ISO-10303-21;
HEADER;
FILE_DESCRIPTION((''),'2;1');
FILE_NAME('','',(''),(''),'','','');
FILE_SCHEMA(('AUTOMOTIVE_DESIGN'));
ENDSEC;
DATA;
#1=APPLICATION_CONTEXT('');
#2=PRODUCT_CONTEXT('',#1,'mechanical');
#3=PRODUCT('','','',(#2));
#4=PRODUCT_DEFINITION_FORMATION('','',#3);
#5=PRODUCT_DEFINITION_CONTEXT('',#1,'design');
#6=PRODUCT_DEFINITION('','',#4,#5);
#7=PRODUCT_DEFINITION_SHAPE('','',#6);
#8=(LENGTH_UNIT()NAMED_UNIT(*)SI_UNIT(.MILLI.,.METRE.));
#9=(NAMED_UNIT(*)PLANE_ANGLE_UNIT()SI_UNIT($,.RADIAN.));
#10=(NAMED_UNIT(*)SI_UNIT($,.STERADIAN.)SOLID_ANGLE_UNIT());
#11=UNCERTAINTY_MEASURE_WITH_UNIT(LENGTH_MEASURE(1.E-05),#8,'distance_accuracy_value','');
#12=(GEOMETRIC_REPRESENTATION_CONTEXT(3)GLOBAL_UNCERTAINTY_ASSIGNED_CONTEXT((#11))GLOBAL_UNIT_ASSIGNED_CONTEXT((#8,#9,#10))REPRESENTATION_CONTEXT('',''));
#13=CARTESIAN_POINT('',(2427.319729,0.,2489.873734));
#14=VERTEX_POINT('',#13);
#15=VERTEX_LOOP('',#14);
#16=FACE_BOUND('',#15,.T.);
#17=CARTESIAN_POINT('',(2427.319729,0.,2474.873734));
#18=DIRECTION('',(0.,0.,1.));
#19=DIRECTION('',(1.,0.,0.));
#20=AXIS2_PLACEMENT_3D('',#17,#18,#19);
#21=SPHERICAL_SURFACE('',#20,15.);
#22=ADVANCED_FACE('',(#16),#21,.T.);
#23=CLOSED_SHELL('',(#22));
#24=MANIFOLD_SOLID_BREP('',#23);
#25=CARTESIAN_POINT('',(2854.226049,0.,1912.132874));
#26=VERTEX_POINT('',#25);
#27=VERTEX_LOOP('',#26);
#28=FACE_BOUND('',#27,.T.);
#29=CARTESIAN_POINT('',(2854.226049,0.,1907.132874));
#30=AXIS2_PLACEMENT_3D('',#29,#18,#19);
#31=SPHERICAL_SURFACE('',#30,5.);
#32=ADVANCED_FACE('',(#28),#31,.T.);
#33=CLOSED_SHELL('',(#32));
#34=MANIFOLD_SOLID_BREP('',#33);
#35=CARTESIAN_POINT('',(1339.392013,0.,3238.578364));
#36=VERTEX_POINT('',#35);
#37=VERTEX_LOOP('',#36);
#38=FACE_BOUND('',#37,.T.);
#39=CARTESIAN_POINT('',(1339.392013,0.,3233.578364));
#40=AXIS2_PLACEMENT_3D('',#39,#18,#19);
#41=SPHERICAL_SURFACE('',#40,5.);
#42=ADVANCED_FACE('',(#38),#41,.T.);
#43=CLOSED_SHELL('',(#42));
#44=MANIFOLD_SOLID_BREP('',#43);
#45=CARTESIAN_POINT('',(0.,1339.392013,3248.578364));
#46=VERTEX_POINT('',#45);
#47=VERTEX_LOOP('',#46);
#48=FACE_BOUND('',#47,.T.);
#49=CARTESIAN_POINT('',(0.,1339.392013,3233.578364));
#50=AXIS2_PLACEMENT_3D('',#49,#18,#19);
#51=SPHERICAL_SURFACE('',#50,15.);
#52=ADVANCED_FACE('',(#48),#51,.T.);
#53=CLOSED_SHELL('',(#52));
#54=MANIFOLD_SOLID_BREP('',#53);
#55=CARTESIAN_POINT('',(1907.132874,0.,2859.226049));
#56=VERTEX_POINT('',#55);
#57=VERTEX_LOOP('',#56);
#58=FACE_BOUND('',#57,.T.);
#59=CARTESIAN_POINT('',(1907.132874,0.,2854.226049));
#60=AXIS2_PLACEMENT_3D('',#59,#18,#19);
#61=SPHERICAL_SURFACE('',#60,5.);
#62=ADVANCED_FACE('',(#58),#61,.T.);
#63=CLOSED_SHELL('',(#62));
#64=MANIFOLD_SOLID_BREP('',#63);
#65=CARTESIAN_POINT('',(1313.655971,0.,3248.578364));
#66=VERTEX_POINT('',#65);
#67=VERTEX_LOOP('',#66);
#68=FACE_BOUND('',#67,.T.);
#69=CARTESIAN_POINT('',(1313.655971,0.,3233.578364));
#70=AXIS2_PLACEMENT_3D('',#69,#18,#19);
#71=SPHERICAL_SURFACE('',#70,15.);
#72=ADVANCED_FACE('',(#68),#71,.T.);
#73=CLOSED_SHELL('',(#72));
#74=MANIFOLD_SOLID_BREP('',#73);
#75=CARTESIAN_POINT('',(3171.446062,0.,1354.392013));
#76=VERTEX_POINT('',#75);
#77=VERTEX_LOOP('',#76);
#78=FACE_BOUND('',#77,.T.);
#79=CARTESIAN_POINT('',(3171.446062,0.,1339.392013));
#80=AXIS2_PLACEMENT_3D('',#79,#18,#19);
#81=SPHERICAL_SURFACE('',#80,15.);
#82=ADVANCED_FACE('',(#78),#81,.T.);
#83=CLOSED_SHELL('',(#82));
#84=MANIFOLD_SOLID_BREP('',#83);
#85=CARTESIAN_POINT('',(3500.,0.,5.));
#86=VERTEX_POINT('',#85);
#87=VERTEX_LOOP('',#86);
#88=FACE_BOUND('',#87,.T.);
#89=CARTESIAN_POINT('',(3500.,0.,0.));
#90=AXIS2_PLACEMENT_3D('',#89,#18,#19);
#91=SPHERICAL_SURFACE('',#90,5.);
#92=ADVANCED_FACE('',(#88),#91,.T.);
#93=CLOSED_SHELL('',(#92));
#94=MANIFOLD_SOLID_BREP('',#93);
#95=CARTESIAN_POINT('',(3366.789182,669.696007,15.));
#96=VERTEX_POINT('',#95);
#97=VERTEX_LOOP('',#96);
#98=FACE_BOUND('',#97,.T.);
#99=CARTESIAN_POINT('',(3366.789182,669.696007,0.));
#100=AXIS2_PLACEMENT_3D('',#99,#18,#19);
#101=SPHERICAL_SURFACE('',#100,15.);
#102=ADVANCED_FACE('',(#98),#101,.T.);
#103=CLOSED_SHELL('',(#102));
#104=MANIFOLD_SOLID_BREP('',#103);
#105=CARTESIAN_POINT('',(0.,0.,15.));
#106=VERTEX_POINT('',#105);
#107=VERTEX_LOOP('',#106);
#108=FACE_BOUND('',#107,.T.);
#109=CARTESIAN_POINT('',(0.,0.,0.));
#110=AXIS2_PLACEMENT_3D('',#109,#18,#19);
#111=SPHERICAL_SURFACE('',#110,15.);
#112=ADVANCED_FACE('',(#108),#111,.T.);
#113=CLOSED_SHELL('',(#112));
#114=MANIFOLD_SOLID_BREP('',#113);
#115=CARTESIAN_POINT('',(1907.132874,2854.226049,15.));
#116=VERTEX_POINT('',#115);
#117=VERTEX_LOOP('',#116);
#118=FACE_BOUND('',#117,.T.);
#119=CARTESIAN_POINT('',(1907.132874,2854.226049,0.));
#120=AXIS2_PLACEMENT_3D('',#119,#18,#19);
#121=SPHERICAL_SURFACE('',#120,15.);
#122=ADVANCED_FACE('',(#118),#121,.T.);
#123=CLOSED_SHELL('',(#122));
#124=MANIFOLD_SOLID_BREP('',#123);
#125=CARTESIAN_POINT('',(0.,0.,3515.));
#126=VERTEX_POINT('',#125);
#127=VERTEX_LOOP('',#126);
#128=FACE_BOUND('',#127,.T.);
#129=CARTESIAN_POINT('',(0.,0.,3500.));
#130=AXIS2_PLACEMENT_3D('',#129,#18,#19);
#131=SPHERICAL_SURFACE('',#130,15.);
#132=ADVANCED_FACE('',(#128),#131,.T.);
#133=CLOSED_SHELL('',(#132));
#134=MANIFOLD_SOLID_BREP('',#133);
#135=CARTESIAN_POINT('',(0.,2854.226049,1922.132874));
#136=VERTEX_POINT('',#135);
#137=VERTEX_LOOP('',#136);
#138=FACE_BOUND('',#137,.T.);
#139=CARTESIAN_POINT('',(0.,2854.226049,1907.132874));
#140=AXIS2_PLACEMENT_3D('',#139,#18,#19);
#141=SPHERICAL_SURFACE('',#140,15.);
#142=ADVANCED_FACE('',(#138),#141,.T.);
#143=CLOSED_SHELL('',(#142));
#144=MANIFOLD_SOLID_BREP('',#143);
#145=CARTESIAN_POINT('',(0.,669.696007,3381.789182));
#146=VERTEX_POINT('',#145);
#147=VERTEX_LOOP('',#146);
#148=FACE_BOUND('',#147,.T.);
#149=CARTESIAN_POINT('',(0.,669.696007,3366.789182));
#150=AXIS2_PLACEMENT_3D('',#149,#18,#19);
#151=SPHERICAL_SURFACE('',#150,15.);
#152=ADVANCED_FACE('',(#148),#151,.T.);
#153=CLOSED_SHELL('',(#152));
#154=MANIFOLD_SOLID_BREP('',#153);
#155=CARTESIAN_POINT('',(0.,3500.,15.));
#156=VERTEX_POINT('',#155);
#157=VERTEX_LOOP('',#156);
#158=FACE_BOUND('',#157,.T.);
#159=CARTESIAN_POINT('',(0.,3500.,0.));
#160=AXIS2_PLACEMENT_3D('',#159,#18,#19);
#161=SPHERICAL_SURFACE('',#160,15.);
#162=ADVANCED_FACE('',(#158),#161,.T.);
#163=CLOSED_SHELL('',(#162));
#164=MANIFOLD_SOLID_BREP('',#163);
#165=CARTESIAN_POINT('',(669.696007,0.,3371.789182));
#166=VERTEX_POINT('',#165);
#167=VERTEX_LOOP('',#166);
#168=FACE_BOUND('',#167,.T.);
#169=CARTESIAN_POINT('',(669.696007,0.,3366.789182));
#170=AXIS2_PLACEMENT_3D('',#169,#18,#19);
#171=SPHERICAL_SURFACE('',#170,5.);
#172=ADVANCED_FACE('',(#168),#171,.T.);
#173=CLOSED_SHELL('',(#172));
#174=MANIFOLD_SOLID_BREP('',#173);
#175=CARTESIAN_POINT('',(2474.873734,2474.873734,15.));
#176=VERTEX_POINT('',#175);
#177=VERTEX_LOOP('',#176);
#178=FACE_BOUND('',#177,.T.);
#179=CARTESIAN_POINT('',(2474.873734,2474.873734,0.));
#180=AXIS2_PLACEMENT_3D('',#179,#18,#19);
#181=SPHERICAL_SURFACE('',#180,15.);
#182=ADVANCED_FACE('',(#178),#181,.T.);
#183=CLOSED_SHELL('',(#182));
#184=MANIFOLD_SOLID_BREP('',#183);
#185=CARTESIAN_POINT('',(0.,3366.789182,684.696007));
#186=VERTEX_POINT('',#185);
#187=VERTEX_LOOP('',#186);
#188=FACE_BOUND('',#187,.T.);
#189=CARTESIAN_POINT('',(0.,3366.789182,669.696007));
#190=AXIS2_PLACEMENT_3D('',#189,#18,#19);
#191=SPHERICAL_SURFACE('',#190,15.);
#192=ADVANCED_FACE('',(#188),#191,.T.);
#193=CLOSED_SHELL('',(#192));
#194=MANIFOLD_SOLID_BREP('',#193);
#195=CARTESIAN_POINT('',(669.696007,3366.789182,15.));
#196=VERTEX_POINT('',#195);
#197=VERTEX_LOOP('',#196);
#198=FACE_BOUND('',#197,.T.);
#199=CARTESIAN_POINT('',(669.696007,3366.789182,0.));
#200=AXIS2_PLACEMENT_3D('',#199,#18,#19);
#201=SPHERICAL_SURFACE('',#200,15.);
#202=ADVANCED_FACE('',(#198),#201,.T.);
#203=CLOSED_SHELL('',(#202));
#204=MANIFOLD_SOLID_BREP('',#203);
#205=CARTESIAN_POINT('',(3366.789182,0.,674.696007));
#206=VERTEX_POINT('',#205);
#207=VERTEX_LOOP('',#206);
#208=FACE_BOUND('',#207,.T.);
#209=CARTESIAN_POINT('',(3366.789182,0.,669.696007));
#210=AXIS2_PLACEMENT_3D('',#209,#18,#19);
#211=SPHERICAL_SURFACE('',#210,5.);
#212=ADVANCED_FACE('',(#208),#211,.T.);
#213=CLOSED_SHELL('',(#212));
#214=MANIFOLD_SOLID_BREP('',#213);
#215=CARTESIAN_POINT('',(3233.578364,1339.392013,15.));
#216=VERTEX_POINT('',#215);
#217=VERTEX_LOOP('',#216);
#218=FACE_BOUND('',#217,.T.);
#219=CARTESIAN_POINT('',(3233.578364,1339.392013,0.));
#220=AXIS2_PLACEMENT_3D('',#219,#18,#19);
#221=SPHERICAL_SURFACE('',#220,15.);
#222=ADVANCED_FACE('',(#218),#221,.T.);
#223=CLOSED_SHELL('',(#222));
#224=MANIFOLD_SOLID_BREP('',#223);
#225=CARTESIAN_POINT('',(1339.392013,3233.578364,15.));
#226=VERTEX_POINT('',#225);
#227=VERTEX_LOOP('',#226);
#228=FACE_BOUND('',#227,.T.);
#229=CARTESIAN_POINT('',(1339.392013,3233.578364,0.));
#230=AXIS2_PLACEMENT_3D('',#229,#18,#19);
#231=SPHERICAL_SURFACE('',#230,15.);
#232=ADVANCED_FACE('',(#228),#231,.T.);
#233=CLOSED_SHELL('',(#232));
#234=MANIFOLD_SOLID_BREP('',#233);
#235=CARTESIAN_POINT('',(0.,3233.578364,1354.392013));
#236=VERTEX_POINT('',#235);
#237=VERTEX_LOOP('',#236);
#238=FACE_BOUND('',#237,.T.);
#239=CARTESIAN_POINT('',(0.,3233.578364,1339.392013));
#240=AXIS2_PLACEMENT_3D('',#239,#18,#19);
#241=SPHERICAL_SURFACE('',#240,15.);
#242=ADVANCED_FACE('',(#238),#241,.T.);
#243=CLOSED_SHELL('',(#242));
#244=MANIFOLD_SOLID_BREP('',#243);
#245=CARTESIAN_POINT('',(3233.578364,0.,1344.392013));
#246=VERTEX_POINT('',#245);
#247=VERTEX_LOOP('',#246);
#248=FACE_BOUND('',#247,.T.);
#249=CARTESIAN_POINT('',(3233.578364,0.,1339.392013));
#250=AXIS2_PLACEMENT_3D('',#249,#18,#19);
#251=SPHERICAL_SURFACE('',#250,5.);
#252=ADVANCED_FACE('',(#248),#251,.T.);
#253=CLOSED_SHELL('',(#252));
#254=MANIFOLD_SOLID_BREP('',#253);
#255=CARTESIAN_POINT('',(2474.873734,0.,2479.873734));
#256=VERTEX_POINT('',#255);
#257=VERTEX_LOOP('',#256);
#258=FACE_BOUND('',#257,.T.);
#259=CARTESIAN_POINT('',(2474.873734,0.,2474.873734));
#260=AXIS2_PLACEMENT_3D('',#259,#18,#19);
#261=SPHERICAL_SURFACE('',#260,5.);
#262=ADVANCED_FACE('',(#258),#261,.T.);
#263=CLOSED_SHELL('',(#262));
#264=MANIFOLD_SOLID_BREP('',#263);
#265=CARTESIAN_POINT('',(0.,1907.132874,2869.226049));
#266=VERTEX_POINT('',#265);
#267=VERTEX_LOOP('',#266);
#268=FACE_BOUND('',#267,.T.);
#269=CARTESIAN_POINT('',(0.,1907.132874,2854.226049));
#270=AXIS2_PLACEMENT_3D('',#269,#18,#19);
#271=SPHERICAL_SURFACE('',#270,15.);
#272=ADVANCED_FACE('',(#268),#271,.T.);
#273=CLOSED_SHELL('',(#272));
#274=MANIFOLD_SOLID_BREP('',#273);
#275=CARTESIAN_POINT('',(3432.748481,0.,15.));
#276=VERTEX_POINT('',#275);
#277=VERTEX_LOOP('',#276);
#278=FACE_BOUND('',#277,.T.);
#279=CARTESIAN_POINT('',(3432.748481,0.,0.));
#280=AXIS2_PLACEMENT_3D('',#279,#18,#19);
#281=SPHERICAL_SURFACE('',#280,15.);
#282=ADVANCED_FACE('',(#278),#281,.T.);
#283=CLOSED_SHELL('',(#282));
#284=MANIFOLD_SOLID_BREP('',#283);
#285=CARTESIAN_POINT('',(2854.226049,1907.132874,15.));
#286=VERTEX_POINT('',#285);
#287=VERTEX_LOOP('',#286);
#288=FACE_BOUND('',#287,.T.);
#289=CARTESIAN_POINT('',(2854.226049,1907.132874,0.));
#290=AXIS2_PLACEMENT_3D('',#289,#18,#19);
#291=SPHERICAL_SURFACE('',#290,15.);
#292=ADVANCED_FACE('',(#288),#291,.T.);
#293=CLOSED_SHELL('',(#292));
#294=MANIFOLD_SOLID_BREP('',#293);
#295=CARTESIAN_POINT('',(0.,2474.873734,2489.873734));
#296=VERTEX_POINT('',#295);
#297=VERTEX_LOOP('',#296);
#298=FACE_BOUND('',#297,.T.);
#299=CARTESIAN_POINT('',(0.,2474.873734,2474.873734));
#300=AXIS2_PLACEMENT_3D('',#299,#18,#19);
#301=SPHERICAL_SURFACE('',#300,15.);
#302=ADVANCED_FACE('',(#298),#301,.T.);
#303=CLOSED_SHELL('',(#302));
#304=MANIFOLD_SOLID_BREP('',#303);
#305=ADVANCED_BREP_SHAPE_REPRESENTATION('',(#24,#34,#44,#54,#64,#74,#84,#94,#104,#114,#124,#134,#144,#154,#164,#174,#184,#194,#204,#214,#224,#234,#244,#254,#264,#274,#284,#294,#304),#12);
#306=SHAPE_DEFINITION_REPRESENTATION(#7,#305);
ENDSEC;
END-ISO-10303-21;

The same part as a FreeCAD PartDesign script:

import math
import FreeCAD as App
import Part
import Sketcher

V = App.Vector

doc = App.newDocument("Part")
body = doc.addObject("PartDesign::Body", "Body")

sketch1 = body.newObject("Sketcher::SketchObject", "Sketch")
sketch1.AttachmentSupport = (doc.getObject("XZ_Plane"), [""])
sketch1.MapMode = "FlatFace"
sketch1.addGeometry(Part.ArcOfCircle(Part.Circle(V(3500, 0, 0), V(0, 0, 1), 5), math.radians(-90), math.radians(90)), False)
sketch1.addGeometry(Part.LineSegment(V(3500, 5, 0), V(3500, -5, 0)), False)
sketch1.addGeometry(Part.LineSegment(V(3500, -5, 0), V(3500, 5, 0)), True)
sketch1.addConstraint(Sketcher.Constraint("Coincident", 0, 1, 1, 2))
sketch1.addConstraint(Sketcher.Constraint("Coincident", 1, 1, 0, 2))
sketch1.addConstraint(Sketcher.Constraint("Vertical", 1))
sketch1.addConstraint(Sketcher.Constraint("Vertical", 2))
sketch1.addConstraint(Sketcher.Constraint("Coincident", 2, 1, 0, 1))
sketch1.addConstraint(Sketcher.Constraint("PointOnObject", 0, 3, -1))
sketch1.addConstraint(Sketcher.Constraint("Equal", 1, 2))
sketch1.addConstraint(Sketcher.Constraint("Radius", 0, 5.0))
sketch1.addConstraint(Sketcher.Constraint("DistanceX", -1, 1, 0, 3, 3500.0))
sketch1.addConstraint(Sketcher.Constraint("DistanceX", -1, 1, 0, 1, 3500.0))
revolution = body.newObject("PartDesign::Revolution", "Revolution")
revolution.Profile = sketch1
revolution.ReferenceAxis = (sketch1, ["Axis0"])
revolution.Angle = 360
body2 = doc.addObject("PartDesign::Body", "Body001")

sketch2 = body2.newObject("Sketcher::SketchObject", "Sketch001")
sketch2.AttachmentSupport = (doc.getObject("XZ_Plane001"), [""])
sketch2.MapMode = "FlatFace"
sketch2.addGeometry(Part.ArcOfCircle(Part.Circle(V(0, 0, 0), V(0, 0, 1), 15), math.radians(-90), math.radians(90)), False)
sketch2.addGeometry(Part.LineSegment(V(0, 15, 0), V(0, -15, 0)), False)
sketch2.addConstraint(Sketcher.Constraint("Coincident", 0, 1, 1, 2))
sketch2.addConstraint(Sketcher.Constraint("Coincident", 1, 1, 0, 2))
sketch2.addConstraint(Sketcher.Constraint("Vertical", 1))
sketch2.addConstraint(Sketcher.Constraint("Coincident", 0, 3, -1, 1))
sketch2.addConstraint(Sketcher.Constraint("PointOnObject", 0, 1, -2))
sketch2.addConstraint(Sketcher.Constraint("Radius", 0, 15.0))
revolution2 = body2.newObject("PartDesign::Revolution", "Revolution001")
revolution2.Profile = sketch2
revolution2.ReferenceAxis = (sketch2, ["V_Axis"])
revolution2.Angle = 360
body3 = doc.addObject("PartDesign::Body", "Body002")

sketch3 = body3.newObject("Sketcher::SketchObject", "Sketch002")
sketch3.AttachmentSupport = (doc.getObject("XZ_Plane002"), [""])
sketch3.MapMode = "FlatFace"
sketch3.addGeometry(Part.ArcOfCircle(Part.Circle(V(0, 3500, 0), V(0, 0, 1), 15), math.radians(-90), math.radians(90)), False)
sketch3.addGeometry(Part.LineSegment(V(0, 3515, 0), V(0, 3485, 0)), False)
sketch3.addConstraint(Sketcher.Constraint("Coincident", 0, 1, 1, 2))
sketch3.addConstraint(Sketcher.Constraint("Coincident", 1, 1, 0, 2))
sketch3.addConstraint(Sketcher.Constraint("Vertical", 1))
sketch3.addConstraint(Sketcher.Constraint("PointOnObject", 0, 3, -2))
sketch3.addConstraint(Sketcher.Constraint("PointOnObject", 0, 1, -2))
sketch3.addConstraint(Sketcher.Constraint("Radius", 0, 15.0))
sketch3.addConstraint(Sketcher.Constraint("DistanceY", -1, 1, 0, 3, 3500.0))
revolution3 = body3.newObject("PartDesign::Revolution", "Revolution002")
revolution3.Profile = sketch3
revolution3.ReferenceAxis = (sketch3, ["V_Axis"])
revolution3.Angle = 360
body4 = doc.addObject("PartDesign::Body", "Body003")

sketch4 = body4.newObject("Sketcher::SketchObject", "Sketch003")
sketch4.AttachmentSupport = (doc.getObject("XZ_Plane003"), [""])
sketch4.MapMode = "FlatFace"
sketch4.addGeometry(Part.ArcOfCircle(Part.Circle(V(1339.392013, 3233.578364, 0), V(0, 0, 1), 5), math.radians(-90), math.radians(90)), False)
sketch4.addGeometry(Part.LineSegment(V(1339.392013, 3238.578364, 0), V(1339.392013, 3228.578364, 0)), False)
sketch4.addGeometry(Part.LineSegment(V(1339.392013, 3228.578364, 0), V(1339.392013, 3238.578364, 0)), True)
sketch4.addConstraint(Sketcher.Constraint("Coincident", 0, 1, 1, 2))
sketch4.addConstraint(Sketcher.Constraint("Coincident", 1, 1, 0, 2))
sketch4.addConstraint(Sketcher.Constraint("Vertical", 1))
sketch4.addConstraint(Sketcher.Constraint("Vertical", 2))
sketch4.addConstraint(Sketcher.Constraint("Coincident", 2, 1, 0, 1))
sketch4.addConstraint(Sketcher.Constraint("Equal", 1, 2))
sketch4.addConstraint(Sketcher.Constraint("Radius", 0, 5.0))
sketch4.addConstraint(Sketcher.Constraint("DistanceX", -1, 1, 0, 3, 1339.392013))
sketch4.addConstraint(Sketcher.Constraint("DistanceY", -1, 1, 0, 3, 3233.578364))
sketch4.addConstraint(Sketcher.Constraint("DistanceX", -1, 1, 0, 1, 1339.392013))
revolution4 = body4.newObject("PartDesign::Revolution", "Revolution003")
revolution4.Profile = sketch4
revolution4.ReferenceAxis = (sketch4, ["Axis0"])
revolution4.Angle = 360
body5 = doc.addObject("PartDesign::Body", "Body004")

sketch5 = body5.newObject("Sketcher::SketchObject", "Sketch004")
sketch5.AttachmentSupport = (doc.getObject("XZ_Plane004"), [""])
sketch5.MapMode = "FlatFace"
sketch5.addGeometry(Part.ArcOfCircle(Part.Circle(V(2474.873734, 2474.873734, 0), V(0, 0, 1), 5), math.radians(-90), math.radians(90)), False)
sketch5.addGeometry(Part.LineSegment(V(2474.873734, 2479.873734, 0), V(2474.873734, 2469.873734, 0)), False)
sketch5.addGeometry(Part.LineSegment(V(2474.873734, 2469.873734, 0), V(2474.873734, 2479.873734, 0)), True)
sketch5.addConstraint(Sketcher.Constraint("Coincident", 0, 1, 1, 2))
sketch5.addConstraint(Sketcher.Constraint("Coincident", 1, 1, 0, 2))
sketch5.addConstraint(Sketcher.Constraint("Vertical", 1))
sketch5.addConstraint(Sketcher.Constraint("Vertical", 2))
sketch5.addConstraint(Sketcher.Constraint("Coincident", 2, 1, 0, 1))
sketch5.addConstraint(Sketcher.Constraint("Equal", 1, 2))
sketch5.addConstraint(Sketcher.Constraint("Radius", 0, 5.0))
sketch5.addConstraint(Sketcher.Constraint("DistanceX", -1, 1, 0, 3, 2474.873734))
sketch5.addConstraint(Sketcher.Constraint("DistanceY", -1, 1, 0, 3, 2474.873734))
sketch5.addConstraint(Sketcher.Constraint("DistanceX", -1, 1, 0, 1, 2474.873734))
revolution5 = body5.newObject("PartDesign::Revolution", "Revolution004")
revolution5.Profile = sketch5
revolution5.ReferenceAxis = (sketch5, ["Axis0"])
revolution5.Angle = 360
body6 = doc.addObject("PartDesign::Body", "Body005")

sketch6 = body6.newObject("Sketcher::SketchObject", "Sketch005")
sketch6.AttachmentSupport = (doc.getObject("XZ_Plane005"), [""])
sketch6.MapMode = "FlatFace"
sketch6.addGeometry(Part.ArcOfCircle(Part.Circle(V(3233.578364, 1339.392013, 0), V(0, 0, 1), 5), math.radians(-90), math.radians(90)), False)
sketch6.addGeometry(Part.LineSegment(V(3233.578364, 1344.392013, 0), V(3233.578364, 1334.392013, 0)), False)
sketch6.addGeometry(Part.LineSegment(V(3233.578364, 1334.392013, 0), V(3233.578364, 1344.392013, 0)), True)
sketch6.addConstraint(Sketcher.Constraint("Coincident", 0, 1, 1, 2))
sketch6.addConstraint(Sketcher.Constraint("Coincident", 1, 1, 0, 2))
sketch6.addConstraint(Sketcher.Constraint("Vertical", 1))
sketch6.addConstraint(Sketcher.Constraint("Vertical", 2))
sketch6.addConstraint(Sketcher.Constraint("Coincident", 2, 1, 0, 1))
sketch6.addConstraint(Sketcher.Constraint("Equal", 1, 2))
sketch6.addConstraint(Sketcher.Constraint("Radius", 0, 5.0))
sketch6.addConstraint(Sketcher.Constraint("DistanceX", -1, 1, 0, 3, 3233.578364))
sketch6.addConstraint(Sketcher.Constraint("DistanceY", -1, 1, 0, 3, 1339.392013))
sketch6.addConstraint(Sketcher.Constraint("DistanceX", -1, 1, 0, 1, 3233.578364))
revolution6 = body6.newObject("PartDesign::Revolution", "Revolution005")
revolution6.Profile = sketch6
revolution6.ReferenceAxis = (sketch6, ["Axis0"])
revolution6.Angle = 360
body7 = doc.addObject("PartDesign::Body", "Body006")

sketch7 = body7.newObject("Sketcher::SketchObject", "Sketch006")
sketch7.AttachmentSupport = (doc.getObject("XZ_Plane006"), [""])
sketch7.MapMode = "FlatFace"
sketch7.AttachmentOffset = App.Placement(V(0, 0, -3500), App.Rotation())
sketch7.addGeometry(Part.ArcOfCircle(Part.Circle(V(0, 0, 0), V(0, 0, 1), 15), math.radians(-90), math.radians(90)), False)
sketch7.addGeometry(Part.LineSegment(V(0, 15, 0), V(0, -15, 0)), False)
sketch7.addConstraint(Sketcher.Constraint("Coincident", 0, 1, 1, 2))
sketch7.addConstraint(Sketcher.Constraint("Coincident", 1, 1, 0, 2))
sketch7.addConstraint(Sketcher.Constraint("Vertical", 1))
sketch7.addConstraint(Sketcher.Constraint("Coincident", 0, 3, -1, 1))
sketch7.addConstraint(Sketcher.Constraint("PointOnObject", 0, 1, -2))
sketch7.addConstraint(Sketcher.Constraint("Radius", 0, 15.0))
revolution7 = body7.newObject("PartDesign::Revolution", "Revolution006")
revolution7.Profile = sketch7
revolution7.ReferenceAxis = (sketch7, ["V_Axis"])
revolution7.Angle = 360
body8 = doc.addObject("PartDesign::Body", "Body007")

sketch8 = body8.newObject("Sketcher::SketchObject", "Sketch007")
sketch8.AttachmentSupport = (doc.getObject("XZ_Plane007"), [""])
sketch8.MapMode = "FlatFace"
sketch8.AttachmentOffset = App.Placement(V(0, 0, -3233.578364), App.Rotation())
sketch8.addGeometry(Part.ArcOfCircle(Part.Circle(V(0, 1339.392013, 0), V(0, 0, 1), 15), math.radians(-90), math.radians(90)), False)
sketch8.addGeometry(Part.LineSegment(V(0, 1354.392013, 0), V(0, 1324.392013, 0)), False)
sketch8.addConstraint(Sketcher.Constraint("Coincident", 0, 1, 1, 2))
sketch8.addConstraint(Sketcher.Constraint("Coincident", 1, 1, 0, 2))
sketch8.addConstraint(Sketcher.Constraint("Vertical", 1))
sketch8.addConstraint(Sketcher.Constraint("PointOnObject", 0, 3, -2))
sketch8.addConstraint(Sketcher.Constraint("PointOnObject", 0, 1, -2))
sketch8.addConstraint(Sketcher.Constraint("Radius", 0, 15.0))
sketch8.addConstraint(Sketcher.Constraint("DistanceY", -1, 1, 0, 3, 1339.392013))
revolution8 = body8.newObject("PartDesign::Revolution", "Revolution007")
revolution8.Profile = sketch8
revolution8.ReferenceAxis = (sketch8, ["V_Axis"])
revolution8.Angle = 360
body9 = doc.addObject("PartDesign::Body", "Body008")

sketch9 = body9.newObject("Sketcher::SketchObject", "Sketch008")
sketch9.AttachmentSupport = (doc.getObject("XZ_Plane008"), [""])
sketch9.MapMode = "FlatFace"
sketch9.AttachmentOffset = App.Placement(V(0, 0, -2474.873734), App.Rotation())
sketch9.addGeometry(Part.ArcOfCircle(Part.Circle(V(0, 2474.873734, 0), V(0, 0, 1), 15), math.radians(-90), math.radians(90)), False)
sketch9.addGeometry(Part.LineSegment(V(0, 2489.873734, 0), V(0, 2459.873734, 0)), False)
sketch9.addConstraint(Sketcher.Constraint("Coincident", 0, 1, 1, 2))
sketch9.addConstraint(Sketcher.Constraint("Coincident", 1, 1, 0, 2))
sketch9.addConstraint(Sketcher.Constraint("Vertical", 1))
sketch9.addConstraint(Sketcher.Constraint("PointOnObject", 0, 3, -2))
sketch9.addConstraint(Sketcher.Constraint("PointOnObject", 0, 1, -2))
sketch9.addConstraint(Sketcher.Constraint("Radius", 0, 15.0))
sketch9.addConstraint(Sketcher.Constraint("DistanceY", -1, 1, 0, 3, 2474.873734))
revolution9 = body9.newObject("PartDesign::Revolution", "Revolution008")
revolution9.Profile = sketch9
revolution9.ReferenceAxis = (sketch9, ["V_Axis"])
revolution9.Angle = 360
body10 = doc.addObject("PartDesign::Body", "Body009")

sketch10 = body10.newObject("Sketcher::SketchObject", "Sketch009")
sketch10.AttachmentSupport = (doc.getObject("XZ_Plane009"), [""])
sketch10.MapMode = "FlatFace"
sketch10.AttachmentOffset = App.Placement(V(0, 0, -1339.392013), App.Rotation())
sketch10.addGeometry(Part.ArcOfCircle(Part.Circle(V(0, 3233.578364, 0), V(0, 0, 1), 15), math.radians(-90), math.radians(90)), False)
sketch10.addGeometry(Part.LineSegment(V(0, 3248.578364, 0), V(0, 3218.578364, 0)), False)
sketch10.addConstraint(Sketcher.Constraint("Coincident", 0, 1, 1, 2))
sketch10.addConstraint(Sketcher.Constraint("Coincident", 1, 1, 0, 2))
sketch10.addConstraint(Sketcher.Constraint("Vertical", 1))
sketch10.addConstraint(Sketcher.Constraint("PointOnObject", 0, 3, -2))
sketch10.addConstraint(Sketcher.Constraint("PointOnObject", 0, 1, -2))
sketch10.addConstraint(Sketcher.Constraint("Radius", 0, 15.0))
sketch10.addConstraint(Sketcher.Constraint("DistanceY", -1, 1, 0, 3, 3233.578364))
revolution10 = body10.newObject("PartDesign::Revolution", "Revolution009")
revolution10.Profile = sketch10
revolution10.ReferenceAxis = (sketch10, ["V_Axis"])
revolution10.Angle = 360
body11 = doc.addObject("PartDesign::Body", "Body010")

sketch11 = body11.newObject("Sketcher::SketchObject", "Sketch010")
sketch11.AttachmentSupport = (doc.getObject("XZ_Plane010"), [""])
sketch11.MapMode = "FlatFace"
sketch11.AttachmentOffset = App.Placement(V(0, 0, -3233.578364), App.Rotation())
sketch11.addGeometry(Part.ArcOfCircle(Part.Circle(V(1339.392013, 0, 0), V(0, 0, 1), 15), math.radians(-90), math.radians(90)), False)
sketch11.addGeometry(Part.LineSegment(V(1339.392013, 15, 0), V(1339.392013, -15, 0)), False)
sketch11.addGeometry(Part.LineSegment(V(1339.392013, -15, 0), V(1339.392013, 15, 0)), True)
sketch11.addConstraint(Sketcher.Constraint("Coincident", 0, 1, 1, 2))
sketch11.addConstraint(Sketcher.Constraint("Coincident", 1, 1, 0, 2))
sketch11.addConstraint(Sketcher.Constraint("Vertical", 1))
sketch11.addConstraint(Sketcher.Constraint("Vertical", 2))
sketch11.addConstraint(Sketcher.Constraint("Coincident", 2, 1, 0, 1))
sketch11.addConstraint(Sketcher.Constraint("PointOnObject", 0, 3, -1))
sketch11.addConstraint(Sketcher.Constraint("Equal", 1, 2))
sketch11.addConstraint(Sketcher.Constraint("Radius", 0, 15.0))
sketch11.addConstraint(Sketcher.Constraint("DistanceX", -1, 1, 0, 3, 1339.392013))
sketch11.addConstraint(Sketcher.Constraint("DistanceX", -1, 1, 0, 1, 1339.392013))
revolution11 = body11.newObject("PartDesign::Revolution", "Revolution010")
revolution11.Profile = sketch11
revolution11.ReferenceAxis = (sketch11, ["Axis0"])
revolution11.Angle = 360
body12 = doc.addObject("PartDesign::Body", "Body011")

sketch12 = body12.newObject("Sketcher::SketchObject", "Sketch011")
sketch12.AttachmentSupport = (doc.getObject("XZ_Plane011"), [""])
sketch12.MapMode = "FlatFace"
sketch12.AttachmentOffset = App.Placement(V(0, 0, -2474.873734), App.Rotation())
sketch12.addGeometry(Part.ArcOfCircle(Part.Circle(V(2474.873734, 0, 0), V(0, 0, 1), 15), math.radians(-90), math.radians(90)), False)
sketch12.addGeometry(Part.LineSegment(V(2474.873734, 15, 0), V(2474.873734, -15, 0)), False)
sketch12.addGeometry(Part.LineSegment(V(2474.873734, -15, 0), V(2474.873734, 15, 0)), True)
sketch12.addConstraint(Sketcher.Constraint("Coincident", 0, 1, 1, 2))
sketch12.addConstraint(Sketcher.Constraint("Coincident", 1, 1, 0, 2))
sketch12.addConstraint(Sketcher.Constraint("Vertical", 1))
sketch12.addConstraint(Sketcher.Constraint("Vertical", 2))
sketch12.addConstraint(Sketcher.Constraint("Coincident", 2, 1, 0, 1))
sketch12.addConstraint(Sketcher.Constraint("PointOnObject", 0, 3, -1))
sketch12.addConstraint(Sketcher.Constraint("Equal", 1, 2))
sketch12.addConstraint(Sketcher.Constraint("Radius", 0, 15.0))
sketch12.addConstraint(Sketcher.Constraint("DistanceX", -1, 1, 0, 3, 2474.873734))
sketch12.addConstraint(Sketcher.Constraint("DistanceX", -1, 1, 0, 1, 2474.873734))
revolution12 = body12.newObject("PartDesign::Revolution", "Revolution011")
revolution12.Profile = sketch12
revolution12.ReferenceAxis = (sketch12, ["Axis0"])
revolution12.Angle = 360
body13 = doc.addObject("PartDesign::Body", "Body012")

sketch13 = body13.newObject("Sketcher::SketchObject", "Sketch012")
sketch13.AttachmentSupport = (doc.getObject("XZ_Plane012"), [""])
sketch13.MapMode = "FlatFace"
sketch13.AttachmentOffset = App.Placement(V(0, 0, -1339.392013), App.Rotation())
sketch13.addGeometry(Part.ArcOfCircle(Part.Circle(V(3233.578364, 0, 0), V(0, 0, 1), 15), math.radians(-90), math.radians(90)), False)
sketch13.addGeometry(Part.LineSegment(V(3233.578364, 15, 0), V(3233.578364, -15, 0)), False)
sketch13.addGeometry(Part.LineSegment(V(3233.578364, -15, 0), V(3233.578364, 15, 0)), True)
sketch13.addConstraint(Sketcher.Constraint("Coincident", 0, 1, 1, 2))
sketch13.addConstraint(Sketcher.Constraint("Coincident", 1, 1, 0, 2))
sketch13.addConstraint(Sketcher.Constraint("Vertical", 1))
sketch13.addConstraint(Sketcher.Constraint("Vertical", 2))
sketch13.addConstraint(Sketcher.Constraint("Coincident", 2, 1, 0, 1))
sketch13.addConstraint(Sketcher.Constraint("PointOnObject", 0, 3, -1))
sketch13.addConstraint(Sketcher.Constraint("Equal", 1, 2))
sketch13.addConstraint(Sketcher.Constraint("Radius", 0, 15.0))
sketch13.addConstraint(Sketcher.Constraint("DistanceX", -1, 1, 0, 3, 3233.578364))
sketch13.addConstraint(Sketcher.Constraint("DistanceX", -1, 1, 0, 1, 3233.578364))
revolution13 = body13.newObject("PartDesign::Revolution", "Revolution012")
revolution13.Profile = sketch13
revolution13.ReferenceAxis = (sketch13, ["Axis0"])
revolution13.Angle = 360
body14 = doc.addObject("PartDesign::Body", "Body013")

sketch14 = body14.newObject("Sketcher::SketchObject", "Sketch013")
sketch14.AttachmentSupport = (doc.getObject("XZ_Plane013"), [""])
sketch14.MapMode = "FlatFace"
sketch14.AttachmentOffset = App.Placement(V(0, 0, -669.696007), App.Rotation())
sketch14.addGeometry(Part.ArcOfCircle(Part.Circle(V(3366.789182, 0, 0), V(0, 0, 1), 15), math.radians(-90), math.radians(90)), False)
sketch14.addGeometry(Part.LineSegment(V(3366.789182, 15, 0), V(3366.789182, -15, 0)), False)
sketch14.addGeometry(Part.LineSegment(V(3366.789182, -15, 0), V(3366.789182, 15, 0)), True)
sketch14.addConstraint(Sketcher.Constraint("Coincident", 0, 1, 1, 2))
sketch14.addConstraint(Sketcher.Constraint("Coincident", 1, 1, 0, 2))
sketch14.addConstraint(Sketcher.Constraint("Vertical", 1))
sketch14.addConstraint(Sketcher.Constraint("Vertical", 2))
sketch14.addConstraint(Sketcher.Constraint("Coincident", 2, 1, 0, 1))
sketch14.addConstraint(Sketcher.Constraint("PointOnObject", 0, 3, -1))
sketch14.addConstraint(Sketcher.Constraint("Equal", 1, 2))
sketch14.addConstraint(Sketcher.Constraint("Radius", 0, 15.0))
sketch14.addConstraint(Sketcher.Constraint("DistanceX", -1, 1, 0, 3, 3366.789182))
sketch14.addConstraint(Sketcher.Constraint("DistanceX", -1, 1, 0, 1, 3366.789182))
revolution14 = body14.newObject("PartDesign::Revolution", "Revolution013")
revolution14.Profile = sketch14
revolution14.ReferenceAxis = (sketch14, ["Axis0"])
revolution14.Angle = 360
body15 = doc.addObject("PartDesign::Body", "Body014")

sketch15 = body15.newObject("Sketcher::SketchObject", "Sketch014")
sketch15.AttachmentSupport = (doc.getObject("XZ_Plane014"), [""])
sketch15.MapMode = "FlatFace"
sketch15.AttachmentOffset = App.Placement(V(0, 0, -1907.132874), App.Rotation())
sketch15.addGeometry(Part.ArcOfCircle(Part.Circle(V(2854.226049, 0, 0), V(0, 0, 1), 15), math.radians(-90), math.radians(90)), False)
sketch15.addGeometry(Part.LineSegment(V(2854.226049, 15, 0), V(2854.226049, -15, 0)), False)
sketch15.addGeometry(Part.LineSegment(V(2854.226049, -15, 0), V(2854.226049, 15, 0)), True)
sketch15.addConstraint(Sketcher.Constraint("Coincident", 0, 1, 1, 2))
sketch15.addConstraint(Sketcher.Constraint("Coincident", 1, 1, 0, 2))
sketch15.addConstraint(Sketcher.Constraint("Vertical", 1))
sketch15.addConstraint(Sketcher.Constraint("Vertical", 2))
sketch15.addConstraint(Sketcher.Constraint("Coincident", 2, 1, 0, 1))
sketch15.addConstraint(Sketcher.Constraint("PointOnObject", 0, 3, -1))
sketch15.addConstraint(Sketcher.Constraint("Equal", 1, 2))
sketch15.addConstraint(Sketcher.Constraint("Radius", 0, 15.0))
sketch15.addConstraint(Sketcher.Constraint("DistanceX", -1, 1, 0, 3, 2854.226049))
sketch15.addConstraint(Sketcher.Constraint("DistanceX", -1, 1, 0, 1, 2854.226049))
revolution15 = body15.newObject("PartDesign::Revolution", "Revolution014")
revolution15.Profile = sketch15
revolution15.ReferenceAxis = (sketch15, ["Axis0"])
revolution15.Angle = 360
body16 = doc.addObject("PartDesign::Body", "Body015")

sketch16 = body16.newObject("Sketcher::SketchObject", "Sketch015")
sketch16.AttachmentSupport = (doc.getObject("XZ_Plane015"), [""])
sketch16.MapMode = "FlatFace"
sketch16.AttachmentOffset = App.Placement(V(0, 0, -2854.226049), App.Rotation())
sketch16.addGeometry(Part.ArcOfCircle(Part.Circle(V(1907.132874, 0, 0), V(0, 0, 1), 15), math.radians(-90), math.radians(90)), False)
sketch16.addGeometry(Part.LineSegment(V(1907.132874, 15, 0), V(1907.132874, -15, 0)), False)
sketch16.addGeometry(Part.LineSegment(V(1907.132874, -15, 0), V(1907.132874, 15, 0)), True)
sketch16.addConstraint(Sketcher.Constraint("Coincident", 0, 1, 1, 2))
sketch16.addConstraint(Sketcher.Constraint("Coincident", 1, 1, 0, 2))
sketch16.addConstraint(Sketcher.Constraint("Vertical", 1))
sketch16.addConstraint(Sketcher.Constraint("Vertical", 2))
sketch16.addConstraint(Sketcher.Constraint("Coincident", 2, 1, 0, 1))
sketch16.addConstraint(Sketcher.Constraint("PointOnObject", 0, 3, -1))
sketch16.addConstraint(Sketcher.Constraint("Equal", 1, 2))
sketch16.addConstraint(Sketcher.Constraint("Radius", 0, 15.0))
sketch16.addConstraint(Sketcher.Constraint("DistanceX", -1, 1, 0, 3, 1907.132874))
sketch16.addConstraint(Sketcher.Constraint("DistanceX", -1, 1, 0, 1, 1907.132874))
revolution16 = body16.newObject("PartDesign::Revolution", "Revolution015")
revolution16.Profile = sketch16
revolution16.ReferenceAxis = (sketch16, ["Axis0"])
revolution16.Angle = 360
body17 = doc.addObject("PartDesign::Body", "Body016")

sketch17 = body17.newObject("Sketcher::SketchObject", "Sketch016")
sketch17.AttachmentSupport = (doc.getObject("XZ_Plane016"), [""])
sketch17.MapMode = "FlatFace"
sketch17.AttachmentOffset = App.Placement(V(0, 0, -3366.789182), App.Rotation())
sketch17.addGeometry(Part.ArcOfCircle(Part.Circle(V(669.696007, 0, 0), V(0, 0, 1), 15), math.radians(-90), math.radians(90)), False)
sketch17.addGeometry(Part.LineSegment(V(669.696007, 15, 0), V(669.696007, -15, 0)), False)
sketch17.addGeometry(Part.LineSegment(V(669.696007, -15, 0), V(669.696007, 15, 0)), True)
sketch17.addConstraint(Sketcher.Constraint("Coincident", 0, 1, 1, 2))
sketch17.addConstraint(Sketcher.Constraint("Coincident", 1, 1, 0, 2))
sketch17.addConstraint(Sketcher.Constraint("Vertical", 1))
sketch17.addConstraint(Sketcher.Constraint("Vertical", 2))
sketch17.addConstraint(Sketcher.Constraint("Coincident", 2, 1, 0, 1))
sketch17.addConstraint(Sketcher.Constraint("PointOnObject", 0, 3, -1))
sketch17.addConstraint(Sketcher.Constraint("Equal", 1, 2))
sketch17.addConstraint(Sketcher.Constraint("Radius", 0, 15.0))
sketch17.addConstraint(Sketcher.Constraint("DistanceX", -1, 1, 0, 3, 669.696007))
sketch17.addConstraint(Sketcher.Constraint("DistanceX", -1, 1, 0, 1, 669.696007))
revolution17 = body17.newObject("PartDesign::Revolution", "Revolution016")
revolution17.Profile = sketch17
revolution17.ReferenceAxis = (sketch17, ["Axis0"])
revolution17.Angle = 360
body18 = doc.addObject("PartDesign::Body", "Body017")

sketch18 = body18.newObject("Sketcher::SketchObject", "Sketch017")
sketch18.AttachmentSupport = (doc.getObject("XZ_Plane017"), [""])
sketch18.MapMode = "FlatFace"
sketch18.AttachmentOffset = App.Placement(V(0, 0, -3366.789182), App.Rotation())
sketch18.addGeometry(Part.ArcOfCircle(Part.Circle(V(0, 669.696007, 0), V(0, 0, 1), 15), math.radians(-90), math.radians(90)), False)
sketch18.addGeometry(Part.LineSegment(V(0, 684.696007, 0), V(0, 654.696007, 0)), False)
sketch18.addConstraint(Sketcher.Constraint("Coincident", 0, 1, 1, 2))
sketch18.addConstraint(Sketcher.Constraint("Coincident", 1, 1, 0, 2))
sketch18.addConstraint(Sketcher.Constraint("Vertical", 1))
sketch18.addConstraint(Sketcher.Constraint("PointOnObject", 0, 3, -2))
sketch18.addConstraint(Sketcher.Constraint("PointOnObject", 0, 1, -2))
sketch18.addConstraint(Sketcher.Constraint("Radius", 0, 15.0))
sketch18.addConstraint(Sketcher.Constraint("DistanceY", -1, 1, 0, 3, 669.696007))
revolution18 = body18.newObject("PartDesign::Revolution", "Revolution017")
revolution18.Profile = sketch18
revolution18.ReferenceAxis = (sketch18, ["V_Axis"])
revolution18.Angle = 360
body19 = doc.addObject("PartDesign::Body", "Body018")

sketch19 = body19.newObject("Sketcher::SketchObject", "Sketch018")
sketch19.AttachmentSupport = (doc.getObject("XZ_Plane018"), [""])
sketch19.MapMode = "FlatFace"
sketch19.AttachmentOffset = App.Placement(V(0, 0, -2854.226049), App.Rotation())
sketch19.addGeometry(Part.ArcOfCircle(Part.Circle(V(0, 1907.132874, 0), V(0, 0, 1), 15), math.radians(-90), math.radians(90)), False)
sketch19.addGeometry(Part.LineSegment(V(0, 1922.132874, 0), V(0, 1892.132874, 0)), False)
sketch19.addConstraint(Sketcher.Constraint("Coincident", 0, 1, 1, 2))
sketch19.addConstraint(Sketcher.Constraint("Coincident", 1, 1, 0, 2))
sketch19.addConstraint(Sketcher.Constraint("Vertical", 1))
sketch19.addConstraint(Sketcher.Constraint("PointOnObject", 0, 3, -2))
sketch19.addConstraint(Sketcher.Constraint("PointOnObject", 0, 1, -2))
sketch19.addConstraint(Sketcher.Constraint("Radius", 0, 15.0))
sketch19.addConstraint(Sketcher.Constraint("DistanceY", -1, 1, 0, 3, 1907.132874))
revolution19 = body19.newObject("PartDesign::Revolution", "Revolution018")
revolution19.Profile = sketch19
revolution19.ReferenceAxis = (sketch19, ["V_Axis"])
revolution19.Angle = 360
body20 = doc.addObject("PartDesign::Body", "Body019")

sketch20 = body20.newObject("Sketcher::SketchObject", "Sketch019")
sketch20.AttachmentSupport = (doc.getObject("XZ_Plane019"), [""])
sketch20.MapMode = "FlatFace"
sketch20.AttachmentOffset = App.Placement(V(0, 0, -1907.132874), App.Rotation())
sketch20.addGeometry(Part.ArcOfCircle(Part.Circle(V(0, 2854.226049, 0), V(0, 0, 1), 15), math.radians(-90), math.radians(90)), False)
sketch20.addGeometry(Part.LineSegment(V(0, 2869.226049, 0), V(0, 2839.226049, 0)), False)
sketch20.addConstraint(Sketcher.Constraint("Coincident", 0, 1, 1, 2))
sketch20.addConstraint(Sketcher.Constraint("Coincident", 1, 1, 0, 2))
sketch20.addConstraint(Sketcher.Constraint("Vertical", 1))
sketch20.addConstraint(Sketcher.Constraint("PointOnObject", 0, 3, -2))
sketch20.addConstraint(Sketcher.Constraint("PointOnObject", 0, 1, -2))
sketch20.addConstraint(Sketcher.Constraint("Radius", 0, 15.0))
sketch20.addConstraint(Sketcher.Constraint("DistanceY", -1, 1, 0, 3, 2854.226049))
revolution20 = body20.newObject("PartDesign::Revolution", "Revolution019")
revolution20.Profile = sketch20
revolution20.ReferenceAxis = (sketch20, ["V_Axis"])
revolution20.Angle = 360
body21 = doc.addObject("PartDesign::Body", "Body020")

sketch21 = body21.newObject("Sketcher::SketchObject", "Sketch020")
sketch21.AttachmentSupport = (doc.getObject("XZ_Plane020"), [""])
sketch21.MapMode = "FlatFace"
sketch21.AttachmentOffset = App.Placement(V(0, 0, -669.696007), App.Rotation())
sketch21.addGeometry(Part.ArcOfCircle(Part.Circle(V(0, 3366.789182, 0), V(0, 0, 1), 15), math.radians(-90), math.radians(90)), False)
sketch21.addGeometry(Part.LineSegment(V(0, 3381.789182, 0), V(0, 3351.789182, 0)), False)
sketch21.addConstraint(Sketcher.Constraint("Coincident", 0, 1, 1, 2))
sketch21.addConstraint(Sketcher.Constraint("Coincident", 1, 1, 0, 2))
sketch21.addConstraint(Sketcher.Constraint("Vertical", 1))
sketch21.addConstraint(Sketcher.Constraint("PointOnObject", 0, 3, -2))
sketch21.addConstraint(Sketcher.Constraint("PointOnObject", 0, 1, -2))
sketch21.addConstraint(Sketcher.Constraint("Radius", 0, 15.0))
sketch21.addConstraint(Sketcher.Constraint("DistanceY", -1, 1, 0, 3, 3366.789182))
revolution21 = body21.newObject("PartDesign::Revolution", "Revolution020")
revolution21.Profile = sketch21
revolution21.ReferenceAxis = (sketch21, ["V_Axis"])
revolution21.Angle = 360
body22 = doc.addObject("PartDesign::Body", "Body021")

sketch22 = body22.newObject("Sketcher::SketchObject", "Sketch021")
sketch22.AttachmentSupport = (doc.getObject("XZ_Plane021"), [""])
sketch22.MapMode = "FlatFace"
sketch22.addGeometry(Part.ArcOfCircle(Part.Circle(V(669.696007, 3366.789182, 0), V(0, 0, 1), 5), math.radians(-90), math.radians(90)), False)
sketch22.addGeometry(Part.LineSegment(V(669.696007, 3371.789182, 0), V(669.696007, 3361.789182, 0)), False)
sketch22.addGeometry(Part.LineSegment(V(669.696007, 3361.789182, 0), V(669.696007, 3371.789182, 0)), True)
sketch22.addConstraint(Sketcher.Constraint("Coincident", 0, 1, 1, 2))
sketch22.addConstraint(Sketcher.Constraint("Coincident", 1, 1, 0, 2))
sketch22.addConstraint(Sketcher.Constraint("Vertical", 1))
sketch22.addConstraint(Sketcher.Constraint("Vertical", 2))
sketch22.addConstraint(Sketcher.Constraint("Coincident", 2, 1, 0, 1))
sketch22.addConstraint(Sketcher.Constraint("Equal", 1, 2))
sketch22.addConstraint(Sketcher.Constraint("Radius", 0, 5.0))
sketch22.addConstraint(Sketcher.Constraint("DistanceY", -1, 1, 0, 3, 3366.789182))
sketch22.addConstraint(Sketcher.Constraint("DistanceX", -1, 1, 0, 3, 669.696007))
sketch22.addConstraint(Sketcher.Constraint("DistanceX", -1, 1, 0, 1, 669.696007))
revolution22 = body22.newObject("PartDesign::Revolution", "Revolution021")
revolution22.Profile = sketch22
revolution22.ReferenceAxis = (sketch22, ["Axis0"])
revolution22.Angle = 360
body23 = doc.addObject("PartDesign::Body", "Body022")

sketch23 = body23.newObject("Sketcher::SketchObject", "Sketch022")
sketch23.AttachmentSupport = (doc.getObject("XZ_Plane022"), [""])
sketch23.MapMode = "FlatFace"
sketch23.addGeometry(Part.ArcOfCircle(Part.Circle(V(1907.132874, 2854.226049, 0), V(0, 0, 1), 5), math.radians(-90), math.radians(90)), False)
sketch23.addGeometry(Part.LineSegment(V(1907.132874, 2859.226049, 0), V(1907.132874, 2849.226049, 0)), False)
sketch23.addGeometry(Part.LineSegment(V(1907.132874, 2849.226049, 0), V(1907.132874, 2859.226049, 0)), True)
sketch23.addConstraint(Sketcher.Constraint("Coincident", 0, 1, 1, 2))
sketch23.addConstraint(Sketcher.Constraint("Coincident", 1, 1, 0, 2))
sketch23.addConstraint(Sketcher.Constraint("Vertical", 1))
sketch23.addConstraint(Sketcher.Constraint("Vertical", 2))
sketch23.addConstraint(Sketcher.Constraint("Coincident", 2, 1, 0, 1))
sketch23.addConstraint(Sketcher.Constraint("Equal", 1, 2))
sketch23.addConstraint(Sketcher.Constraint("Radius", 0, 5.0))
sketch23.addConstraint(Sketcher.Constraint("DistanceY", -1, 1, 0, 3, 2854.226049))
sketch23.addConstraint(Sketcher.Constraint("DistanceX", -1, 1, 0, 3, 1907.132874))
sketch23.addConstraint(Sketcher.Constraint("DistanceX", -1, 1, 0, 1, 1907.132874))
revolution23 = body23.newObject("PartDesign::Revolution", "Revolution022")
revolution23.Profile = sketch23
revolution23.ReferenceAxis = (sketch23, ["Axis0"])
revolution23.Angle = 360
body24 = doc.addObject("PartDesign::Body", "Body023")

sketch24 = body24.newObject("Sketcher::SketchObject", "Sketch023")
sketch24.AttachmentSupport = (doc.getObject("XZ_Plane023"), [""])
sketch24.MapMode = "FlatFace"
sketch24.addGeometry(Part.ArcOfCircle(Part.Circle(V(2854.226049, 1907.132874, 0), V(0, 0, 1), 5), math.radians(-90), math.radians(90)), False)
sketch24.addGeometry(Part.LineSegment(V(2854.226049, 1912.132874, 0), V(2854.226049, 1902.132874, 0)), False)
sketch24.addGeometry(Part.LineSegment(V(2854.226049, 1902.132874, 0), V(2854.226049, 1912.132874, 0)), True)
sketch24.addConstraint(Sketcher.Constraint("Coincident", 0, 1, 1, 2))
sketch24.addConstraint(Sketcher.Constraint("Coincident", 1, 1, 0, 2))
sketch24.addConstraint(Sketcher.Constraint("Vertical", 1))
sketch24.addConstraint(Sketcher.Constraint("Vertical", 2))
sketch24.addConstraint(Sketcher.Constraint("Coincident", 2, 1, 0, 1))
sketch24.addConstraint(Sketcher.Constraint("Equal", 1, 2))
sketch24.addConstraint(Sketcher.Constraint("Radius", 0, 5.0))
sketch24.addConstraint(Sketcher.Constraint("DistanceX", -1, 1, 0, 3, 2854.226049))
sketch24.addConstraint(Sketcher.Constraint("DistanceX", -1, 1, 0, 1, 2854.226049))
sketch24.addConstraint(Sketcher.Constraint("DistanceY", -1, 1, 0, 3, 1907.132874))
revolution24 = body24.newObject("PartDesign::Revolution", "Revolution023")
revolution24.Profile = sketch24
revolution24.ReferenceAxis = (sketch24, ["Axis0"])
revolution24.Angle = 360
body25 = doc.addObject("PartDesign::Body", "Body024")

sketch25 = body25.newObject("Sketcher::SketchObject", "Sketch024")
sketch25.AttachmentSupport = (doc.getObject("XZ_Plane024"), [""])
sketch25.MapMode = "FlatFace"
sketch25.addGeometry(Part.ArcOfCircle(Part.Circle(V(3366.789182, 669.696007, 0), V(0, 0, 1), 5), math.radians(-90), math.radians(90)), False)
sketch25.addGeometry(Part.LineSegment(V(3366.789182, 674.696007, 0), V(3366.789182, 664.696007, 0)), False)
sketch25.addGeometry(Part.LineSegment(V(3366.789182, 664.696007, 0), V(3366.789182, 674.696007, 0)), True)
sketch25.addConstraint(Sketcher.Constraint("Coincident", 0, 1, 1, 2))
sketch25.addConstraint(Sketcher.Constraint("Coincident", 1, 1, 0, 2))
sketch25.addConstraint(Sketcher.Constraint("Vertical", 1))
sketch25.addConstraint(Sketcher.Constraint("Vertical", 2))
sketch25.addConstraint(Sketcher.Constraint("Coincident", 2, 1, 0, 1))
sketch25.addConstraint(Sketcher.Constraint("Equal", 1, 2))
sketch25.addConstraint(Sketcher.Constraint("Radius", 0, 5.0))
sketch25.addConstraint(Sketcher.Constraint("DistanceX", -1, 1, 0, 3, 3366.789182))
sketch25.addConstraint(Sketcher.Constraint("DistanceX", -1, 1, 0, 1, 3366.789182))
sketch25.addConstraint(Sketcher.Constraint("DistanceY", -1, 1, 0, 3, 669.696007))
revolution25 = body25.newObject("PartDesign::Revolution", "Revolution024")
revolution25.Profile = sketch25
revolution25.ReferenceAxis = (sketch25, ["Axis0"])
revolution25.Angle = 360
body26 = doc.addObject("PartDesign::Body", "Body025")

sketch26 = body26.newObject("Sketcher::SketchObject", "Sketch025")
sketch26.AttachmentSupport = (doc.getObject("XZ_Plane025"), [""])
sketch26.MapMode = "FlatFace"
sketch26.addGeometry(Part.ArcOfCircle(Part.Circle(V(1313.655971, 3233.578364, 0), V(0, 0, 1), 15), math.radians(-90), math.radians(90)), False)
sketch26.addGeometry(Part.LineSegment(V(1313.655971, 3248.578364, 0), V(1313.655971, 3218.578364, 0)), False)
sketch26.addGeometry(Part.LineSegment(V(1313.655971, 3218.578364, 0), V(1313.655971, 3248.578364, 0)), True)
sketch26.addConstraint(Sketcher.Constraint("Coincident", 0, 1, 1, 2))
sketch26.addConstraint(Sketcher.Constraint("Coincident", 1, 1, 0, 2))
sketch26.addConstraint(Sketcher.Constraint("Vertical", 1))
sketch26.addConstraint(Sketcher.Constraint("Vertical", 2))
sketch26.addConstraint(Sketcher.Constraint("Coincident", 2, 1, 0, 1))
sketch26.addConstraint(Sketcher.Constraint("Equal", 1, 2))
sketch26.addConstraint(Sketcher.Constraint("Radius", 0, 15.0))
sketch26.addConstraint(Sketcher.Constraint("DistanceX", -1, 1, 0, 3, 1313.655971))
sketch26.addConstraint(Sketcher.Constraint("DistanceX", -1, 1, 0, 1, 1313.655971))
sketch26.addConstraint(Sketcher.Constraint("DistanceY", -1, 1, 0, 3, 3233.578364))
revolution26 = body26.newObject("PartDesign::Revolution", "Revolution025")
revolution26.Profile = sketch26
revolution26.ReferenceAxis = (sketch26, ["Axis0"])
revolution26.Angle = 360
body27 = doc.addObject("PartDesign::Body", "Body026")

sketch27 = body27.newObject("Sketcher::SketchObject", "Sketch026")
sketch27.AttachmentSupport = (doc.getObject("XZ_Plane026"), [""])
sketch27.MapMode = "FlatFace"
sketch27.addGeometry(Part.ArcOfCircle(Part.Circle(V(2427.319729, 2474.873734, 0), V(0, 0, 1), 15), math.radians(-90), math.radians(90)), False)
sketch27.addGeometry(Part.LineSegment(V(2427.319729, 2489.873734, 0), V(2427.319729, 2459.873734, 0)), False)
sketch27.addGeometry(Part.LineSegment(V(2427.319729, 2459.873734, 0), V(2427.319729, 2489.873734, 0)), True)
sketch27.addConstraint(Sketcher.Constraint("Coincident", 0, 1, 1, 2))
sketch27.addConstraint(Sketcher.Constraint("Coincident", 1, 1, 0, 2))
sketch27.addConstraint(Sketcher.Constraint("Vertical", 1))
sketch27.addConstraint(Sketcher.Constraint("Vertical", 2))
sketch27.addConstraint(Sketcher.Constraint("Coincident", 2, 1, 0, 1))
sketch27.addConstraint(Sketcher.Constraint("Equal", 1, 2))
sketch27.addConstraint(Sketcher.Constraint("Radius", 0, 15.0))
sketch27.addConstraint(Sketcher.Constraint("DistanceX", -1, 1, 0, 3, 2427.319729))
sketch27.addConstraint(Sketcher.Constraint("DistanceX", -1, 1, 0, 1, 2427.319729))
sketch27.addConstraint(Sketcher.Constraint("DistanceY", -1, 1, 0, 3, 2474.873734))
revolution27 = body27.newObject("PartDesign::Revolution", "Revolution026")
revolution27.Profile = sketch27
revolution27.ReferenceAxis = (sketch27, ["Axis0"])
revolution27.Angle = 360
body28 = doc.addObject("PartDesign::Body", "Body027")

sketch28 = body28.newObject("Sketcher::SketchObject", "Sketch027")
sketch28.AttachmentSupport = (doc.getObject("XZ_Plane027"), [""])
sketch28.MapMode = "FlatFace"
sketch28.addGeometry(Part.ArcOfCircle(Part.Circle(V(3171.446062, 1339.392013, 0), V(0, 0, 1), 15), math.radians(-90), math.radians(90)), False)
sketch28.addGeometry(Part.LineSegment(V(3171.446062, 1354.392013, 0), V(3171.446062, 1324.392013, 0)), False)
sketch28.addGeometry(Part.LineSegment(V(3171.446062, 1324.392013, 0), V(3171.446062, 1354.392013, 0)), True)
sketch28.addConstraint(Sketcher.Constraint("Coincident", 0, 1, 1, 2))
sketch28.addConstraint(Sketcher.Constraint("Coincident", 1, 1, 0, 2))
sketch28.addConstraint(Sketcher.Constraint("Vertical", 1))
sketch28.addConstraint(Sketcher.Constraint("Vertical", 2))
sketch28.addConstraint(Sketcher.Constraint("Coincident", 2, 1, 0, 1))
sketch28.addConstraint(Sketcher.Constraint("Equal", 1, 2))
sketch28.addConstraint(Sketcher.Constraint("Radius", 0, 15.0))
sketch28.addConstraint(Sketcher.Constraint("DistanceX", -1, 1, 0, 3, 3171.446062))
sketch28.addConstraint(Sketcher.Constraint("DistanceX", -1, 1, 0, 1, 3171.446062))
sketch28.addConstraint(Sketcher.Constraint("DistanceY", -1, 1, 0, 3, 1339.392013))
revolution28 = body28.newObject("PartDesign::Revolution", "Revolution027")
revolution28.Profile = sketch28
revolution28.ReferenceAxis = (sketch28, ["Axis0"])
revolution28.Angle = 360
body29 = doc.addObject("PartDesign::Body", "Body028")

sketch29 = body29.newObject("Sketcher::SketchObject", "Sketch028")
sketch29.AttachmentSupport = (doc.getObject("XZ_Plane028"), [""])
sketch29.MapMode = "FlatFace"
sketch29.addGeometry(Part.ArcOfCircle(Part.Circle(V(3432.748481, 0, 0), V(0, 0, 1), 15), math.radians(-90), math.radians(90)), False)
sketch29.addGeometry(Part.LineSegment(V(3432.748481, 15, 0), V(3432.748481, -15, 0)), False)
sketch29.addGeometry(Part.LineSegment(V(3432.748481, -15, 0), V(3432.748481, 15, 0)), True)
sketch29.addConstraint(Sketcher.Constraint("Coincident", 0, 1, 1, 2))
sketch29.addConstraint(Sketcher.Constraint("Coincident", 1, 1, 0, 2))
sketch29.addConstraint(Sketcher.Constraint("Vertical", 1))
sketch29.addConstraint(Sketcher.Constraint("Vertical", 2))
sketch29.addConstraint(Sketcher.Constraint("Coincident", 2, 1, 0, 1))
sketch29.addConstraint(Sketcher.Constraint("PointOnObject", 0, 3, -1))
sketch29.addConstraint(Sketcher.Constraint("Equal", 1, 2))
sketch29.addConstraint(Sketcher.Constraint("Radius", 0, 15.0))
sketch29.addConstraint(Sketcher.Constraint("DistanceX", -1, 1, 0, 3, 3432.748481))
sketch29.addConstraint(Sketcher.Constraint("DistanceX", -1, 1, 0, 1, 3432.748481))
revolution29 = body29.newObject("PartDesign::Revolution", "Revolution028")
revolution29.Profile = sketch29
revolution29.ReferenceAxis = (sketch29, ["Axis0"])
revolution29.Angle = 360

doc.recompute()
